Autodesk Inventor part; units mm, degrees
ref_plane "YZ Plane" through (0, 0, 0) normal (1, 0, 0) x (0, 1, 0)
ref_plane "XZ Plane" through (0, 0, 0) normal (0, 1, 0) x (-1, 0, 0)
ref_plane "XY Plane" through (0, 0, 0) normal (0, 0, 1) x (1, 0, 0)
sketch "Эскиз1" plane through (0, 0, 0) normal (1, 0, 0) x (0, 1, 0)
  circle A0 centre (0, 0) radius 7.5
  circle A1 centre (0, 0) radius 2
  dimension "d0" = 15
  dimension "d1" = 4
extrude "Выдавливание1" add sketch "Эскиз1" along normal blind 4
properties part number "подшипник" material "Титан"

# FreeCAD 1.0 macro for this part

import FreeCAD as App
import Part
import Sketcher

V = App.Vector

doc = App.newDocument("Part")
body = doc.addObject("PartDesign::Body", "Body")

sketch1 = doc.addObject("Sketcher::SketchObject", "Sketch")
body.addObject(sketch1)
sketch1.AttachmentSupport = (doc.YZ_Plane, [""])
sketch1.MapMode = "FlatFace"
sketch1.addGeometry([
    Part.Circle(V(0, 0, 0), V(0, 0, 1), 7.5),
    Part.Circle(V(0, 0, 0), V(0, 0, 1), 2),
], False)
sketch1.addConstraint([
    Sketcher.Constraint("Coincident", 0, 3, -1, 1),
    Sketcher.Constraint("Coincident", 1, 3, -1, 1),
    Sketcher.Constraint("Diameter", 0, 15.0),
    Sketcher.Constraint("Diameter", 1, 4.0),
])
pad1 = doc.addObject("PartDesign::Pad", "Pad")
body.addObject(pad1)
pad1.Profile = sketch1
pad1.Length = 4

doc.recompute()
